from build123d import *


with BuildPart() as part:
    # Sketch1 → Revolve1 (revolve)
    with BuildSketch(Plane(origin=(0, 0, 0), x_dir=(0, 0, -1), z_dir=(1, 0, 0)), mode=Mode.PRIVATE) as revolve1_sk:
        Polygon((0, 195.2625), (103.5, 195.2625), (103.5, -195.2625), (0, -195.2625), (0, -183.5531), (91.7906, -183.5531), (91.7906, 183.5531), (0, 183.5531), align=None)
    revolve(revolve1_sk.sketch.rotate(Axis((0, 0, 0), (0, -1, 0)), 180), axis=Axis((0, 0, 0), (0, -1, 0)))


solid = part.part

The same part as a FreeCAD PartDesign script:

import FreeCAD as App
import Part
import Sketcher

V = App.Vector
Q = App.Units.Quantity

doc = App.newDocument("Part")
body = doc.addObject("PartDesign::Body", "Body")

sketch1 = body.newObject("Sketcher::SketchObject", "Sketch")
sketch1.AttachmentSupport = (doc.getObject("YZ_Plane"), [""])
sketch1.MapMode = "FlatFace"
sketch1.addGeometry(Part.LineSegment(V(195, -104, 0), V(195, 0, 0)), False)
sketch1.addGeometry(Part.LineSegment(V(195, 0, 0), V(184, 0, 0)), False)
sketch1.addGeometry(Part.LineSegment(V(184, 0, 0), V(184, -92, 0)), False)
sketch1.addGeometry(Part.LineSegment(V(184, -92, 0), V(-184, -92, 0)), False)
sketch1.addGeometry(Part.LineSegment(V(-184, -92, 0), V(-184, 0, 0)), False)
sketch1.addGeometry(Part.LineSegment(V(-184, 0, 0), V(-195, 0, 0)), False)
sketch1.addGeometry(Part.LineSegment(V(-195, 0, 0), V(-195, -104, 0)), False)
sketch1.addGeometry(Part.LineSegment(V(-195, -104, 0), V(195, -104, 0)), False)
sketch1.addConstraint(Sketcher.Constraint("Coincident", 0, 2, 1, 1))
sketch1.addConstraint(Sketcher.Constraint("Coincident", 1, 2, 2, 1))
sketch1.addConstraint(Sketcher.Constraint("Coincident", 2, 2, 3, 1))
sketch1.addConstraint(Sketcher.Constraint("Coincident", 3, 2, 4, 1))
sketch1.addConstraint(Sketcher.Constraint("Coincident", 4, 2, 5, 1))
sketch1.addConstraint(Sketcher.Constraint("Coincident", 5, 2, 6, 1))
sketch1.addConstraint(Sketcher.Constraint("Coincident", 6, 2, 7, 1))
sketch1.addConstraint(Sketcher.Constraint("Coincident", 7, 2, 0, 1))
sketch1.addConstraint(Sketcher.Constraint("Vertical", 0))
sketch1.addConstraint(Sketcher.Constraint("Horizontal", 1))
sketch1.addConstraint(Sketcher.Constraint("Vertical", 2))
sketch1.addConstraint(Sketcher.Constraint("Horizontal", 3))
sketch1.addConstraint(Sketcher.Constraint("Vertical", 4))
sketch1.addConstraint(Sketcher.Constraint("Horizontal", 5))
sketch1.addConstraint(Sketcher.Constraint("Vertical", 6))
sketch1.addConstraint(Sketcher.Constraint("Horizontal", 7))
sketch1.addConstraint(Sketcher.Constraint("Symmetric", 1, 2, 4, 2, -1, 1))
sketch1.addConstraint(Sketcher.Constraint("Symmetric", 0, 2, 5, 2, -2))
sketch1.addConstraint(Sketcher.Constraint("DistanceX", 1, 2, 1, 1, Q("0.461 in")))
sketch1.addConstraint(Sketcher.Constraint("DistanceX", 3, 2, 3, 1, Q("14.453 in")))
sketch1.addConstraint(Sketcher.Constraint("DistanceY", 6, 2, 3, 2, Q("0.461 in")))
sketch1.addConstraint(Sketcher.Constraint("DistanceY", 0, 1, 0, 2, Q("103.5 mm")))
revolution = body.newObject("PartDesign::Revolution", "Revolution")
revolution.Profile = sketch1
revolution.ReferenceAxis = (sketch1, ["H_Axis"])
revolution.Angle = 360

doc.recompute()
